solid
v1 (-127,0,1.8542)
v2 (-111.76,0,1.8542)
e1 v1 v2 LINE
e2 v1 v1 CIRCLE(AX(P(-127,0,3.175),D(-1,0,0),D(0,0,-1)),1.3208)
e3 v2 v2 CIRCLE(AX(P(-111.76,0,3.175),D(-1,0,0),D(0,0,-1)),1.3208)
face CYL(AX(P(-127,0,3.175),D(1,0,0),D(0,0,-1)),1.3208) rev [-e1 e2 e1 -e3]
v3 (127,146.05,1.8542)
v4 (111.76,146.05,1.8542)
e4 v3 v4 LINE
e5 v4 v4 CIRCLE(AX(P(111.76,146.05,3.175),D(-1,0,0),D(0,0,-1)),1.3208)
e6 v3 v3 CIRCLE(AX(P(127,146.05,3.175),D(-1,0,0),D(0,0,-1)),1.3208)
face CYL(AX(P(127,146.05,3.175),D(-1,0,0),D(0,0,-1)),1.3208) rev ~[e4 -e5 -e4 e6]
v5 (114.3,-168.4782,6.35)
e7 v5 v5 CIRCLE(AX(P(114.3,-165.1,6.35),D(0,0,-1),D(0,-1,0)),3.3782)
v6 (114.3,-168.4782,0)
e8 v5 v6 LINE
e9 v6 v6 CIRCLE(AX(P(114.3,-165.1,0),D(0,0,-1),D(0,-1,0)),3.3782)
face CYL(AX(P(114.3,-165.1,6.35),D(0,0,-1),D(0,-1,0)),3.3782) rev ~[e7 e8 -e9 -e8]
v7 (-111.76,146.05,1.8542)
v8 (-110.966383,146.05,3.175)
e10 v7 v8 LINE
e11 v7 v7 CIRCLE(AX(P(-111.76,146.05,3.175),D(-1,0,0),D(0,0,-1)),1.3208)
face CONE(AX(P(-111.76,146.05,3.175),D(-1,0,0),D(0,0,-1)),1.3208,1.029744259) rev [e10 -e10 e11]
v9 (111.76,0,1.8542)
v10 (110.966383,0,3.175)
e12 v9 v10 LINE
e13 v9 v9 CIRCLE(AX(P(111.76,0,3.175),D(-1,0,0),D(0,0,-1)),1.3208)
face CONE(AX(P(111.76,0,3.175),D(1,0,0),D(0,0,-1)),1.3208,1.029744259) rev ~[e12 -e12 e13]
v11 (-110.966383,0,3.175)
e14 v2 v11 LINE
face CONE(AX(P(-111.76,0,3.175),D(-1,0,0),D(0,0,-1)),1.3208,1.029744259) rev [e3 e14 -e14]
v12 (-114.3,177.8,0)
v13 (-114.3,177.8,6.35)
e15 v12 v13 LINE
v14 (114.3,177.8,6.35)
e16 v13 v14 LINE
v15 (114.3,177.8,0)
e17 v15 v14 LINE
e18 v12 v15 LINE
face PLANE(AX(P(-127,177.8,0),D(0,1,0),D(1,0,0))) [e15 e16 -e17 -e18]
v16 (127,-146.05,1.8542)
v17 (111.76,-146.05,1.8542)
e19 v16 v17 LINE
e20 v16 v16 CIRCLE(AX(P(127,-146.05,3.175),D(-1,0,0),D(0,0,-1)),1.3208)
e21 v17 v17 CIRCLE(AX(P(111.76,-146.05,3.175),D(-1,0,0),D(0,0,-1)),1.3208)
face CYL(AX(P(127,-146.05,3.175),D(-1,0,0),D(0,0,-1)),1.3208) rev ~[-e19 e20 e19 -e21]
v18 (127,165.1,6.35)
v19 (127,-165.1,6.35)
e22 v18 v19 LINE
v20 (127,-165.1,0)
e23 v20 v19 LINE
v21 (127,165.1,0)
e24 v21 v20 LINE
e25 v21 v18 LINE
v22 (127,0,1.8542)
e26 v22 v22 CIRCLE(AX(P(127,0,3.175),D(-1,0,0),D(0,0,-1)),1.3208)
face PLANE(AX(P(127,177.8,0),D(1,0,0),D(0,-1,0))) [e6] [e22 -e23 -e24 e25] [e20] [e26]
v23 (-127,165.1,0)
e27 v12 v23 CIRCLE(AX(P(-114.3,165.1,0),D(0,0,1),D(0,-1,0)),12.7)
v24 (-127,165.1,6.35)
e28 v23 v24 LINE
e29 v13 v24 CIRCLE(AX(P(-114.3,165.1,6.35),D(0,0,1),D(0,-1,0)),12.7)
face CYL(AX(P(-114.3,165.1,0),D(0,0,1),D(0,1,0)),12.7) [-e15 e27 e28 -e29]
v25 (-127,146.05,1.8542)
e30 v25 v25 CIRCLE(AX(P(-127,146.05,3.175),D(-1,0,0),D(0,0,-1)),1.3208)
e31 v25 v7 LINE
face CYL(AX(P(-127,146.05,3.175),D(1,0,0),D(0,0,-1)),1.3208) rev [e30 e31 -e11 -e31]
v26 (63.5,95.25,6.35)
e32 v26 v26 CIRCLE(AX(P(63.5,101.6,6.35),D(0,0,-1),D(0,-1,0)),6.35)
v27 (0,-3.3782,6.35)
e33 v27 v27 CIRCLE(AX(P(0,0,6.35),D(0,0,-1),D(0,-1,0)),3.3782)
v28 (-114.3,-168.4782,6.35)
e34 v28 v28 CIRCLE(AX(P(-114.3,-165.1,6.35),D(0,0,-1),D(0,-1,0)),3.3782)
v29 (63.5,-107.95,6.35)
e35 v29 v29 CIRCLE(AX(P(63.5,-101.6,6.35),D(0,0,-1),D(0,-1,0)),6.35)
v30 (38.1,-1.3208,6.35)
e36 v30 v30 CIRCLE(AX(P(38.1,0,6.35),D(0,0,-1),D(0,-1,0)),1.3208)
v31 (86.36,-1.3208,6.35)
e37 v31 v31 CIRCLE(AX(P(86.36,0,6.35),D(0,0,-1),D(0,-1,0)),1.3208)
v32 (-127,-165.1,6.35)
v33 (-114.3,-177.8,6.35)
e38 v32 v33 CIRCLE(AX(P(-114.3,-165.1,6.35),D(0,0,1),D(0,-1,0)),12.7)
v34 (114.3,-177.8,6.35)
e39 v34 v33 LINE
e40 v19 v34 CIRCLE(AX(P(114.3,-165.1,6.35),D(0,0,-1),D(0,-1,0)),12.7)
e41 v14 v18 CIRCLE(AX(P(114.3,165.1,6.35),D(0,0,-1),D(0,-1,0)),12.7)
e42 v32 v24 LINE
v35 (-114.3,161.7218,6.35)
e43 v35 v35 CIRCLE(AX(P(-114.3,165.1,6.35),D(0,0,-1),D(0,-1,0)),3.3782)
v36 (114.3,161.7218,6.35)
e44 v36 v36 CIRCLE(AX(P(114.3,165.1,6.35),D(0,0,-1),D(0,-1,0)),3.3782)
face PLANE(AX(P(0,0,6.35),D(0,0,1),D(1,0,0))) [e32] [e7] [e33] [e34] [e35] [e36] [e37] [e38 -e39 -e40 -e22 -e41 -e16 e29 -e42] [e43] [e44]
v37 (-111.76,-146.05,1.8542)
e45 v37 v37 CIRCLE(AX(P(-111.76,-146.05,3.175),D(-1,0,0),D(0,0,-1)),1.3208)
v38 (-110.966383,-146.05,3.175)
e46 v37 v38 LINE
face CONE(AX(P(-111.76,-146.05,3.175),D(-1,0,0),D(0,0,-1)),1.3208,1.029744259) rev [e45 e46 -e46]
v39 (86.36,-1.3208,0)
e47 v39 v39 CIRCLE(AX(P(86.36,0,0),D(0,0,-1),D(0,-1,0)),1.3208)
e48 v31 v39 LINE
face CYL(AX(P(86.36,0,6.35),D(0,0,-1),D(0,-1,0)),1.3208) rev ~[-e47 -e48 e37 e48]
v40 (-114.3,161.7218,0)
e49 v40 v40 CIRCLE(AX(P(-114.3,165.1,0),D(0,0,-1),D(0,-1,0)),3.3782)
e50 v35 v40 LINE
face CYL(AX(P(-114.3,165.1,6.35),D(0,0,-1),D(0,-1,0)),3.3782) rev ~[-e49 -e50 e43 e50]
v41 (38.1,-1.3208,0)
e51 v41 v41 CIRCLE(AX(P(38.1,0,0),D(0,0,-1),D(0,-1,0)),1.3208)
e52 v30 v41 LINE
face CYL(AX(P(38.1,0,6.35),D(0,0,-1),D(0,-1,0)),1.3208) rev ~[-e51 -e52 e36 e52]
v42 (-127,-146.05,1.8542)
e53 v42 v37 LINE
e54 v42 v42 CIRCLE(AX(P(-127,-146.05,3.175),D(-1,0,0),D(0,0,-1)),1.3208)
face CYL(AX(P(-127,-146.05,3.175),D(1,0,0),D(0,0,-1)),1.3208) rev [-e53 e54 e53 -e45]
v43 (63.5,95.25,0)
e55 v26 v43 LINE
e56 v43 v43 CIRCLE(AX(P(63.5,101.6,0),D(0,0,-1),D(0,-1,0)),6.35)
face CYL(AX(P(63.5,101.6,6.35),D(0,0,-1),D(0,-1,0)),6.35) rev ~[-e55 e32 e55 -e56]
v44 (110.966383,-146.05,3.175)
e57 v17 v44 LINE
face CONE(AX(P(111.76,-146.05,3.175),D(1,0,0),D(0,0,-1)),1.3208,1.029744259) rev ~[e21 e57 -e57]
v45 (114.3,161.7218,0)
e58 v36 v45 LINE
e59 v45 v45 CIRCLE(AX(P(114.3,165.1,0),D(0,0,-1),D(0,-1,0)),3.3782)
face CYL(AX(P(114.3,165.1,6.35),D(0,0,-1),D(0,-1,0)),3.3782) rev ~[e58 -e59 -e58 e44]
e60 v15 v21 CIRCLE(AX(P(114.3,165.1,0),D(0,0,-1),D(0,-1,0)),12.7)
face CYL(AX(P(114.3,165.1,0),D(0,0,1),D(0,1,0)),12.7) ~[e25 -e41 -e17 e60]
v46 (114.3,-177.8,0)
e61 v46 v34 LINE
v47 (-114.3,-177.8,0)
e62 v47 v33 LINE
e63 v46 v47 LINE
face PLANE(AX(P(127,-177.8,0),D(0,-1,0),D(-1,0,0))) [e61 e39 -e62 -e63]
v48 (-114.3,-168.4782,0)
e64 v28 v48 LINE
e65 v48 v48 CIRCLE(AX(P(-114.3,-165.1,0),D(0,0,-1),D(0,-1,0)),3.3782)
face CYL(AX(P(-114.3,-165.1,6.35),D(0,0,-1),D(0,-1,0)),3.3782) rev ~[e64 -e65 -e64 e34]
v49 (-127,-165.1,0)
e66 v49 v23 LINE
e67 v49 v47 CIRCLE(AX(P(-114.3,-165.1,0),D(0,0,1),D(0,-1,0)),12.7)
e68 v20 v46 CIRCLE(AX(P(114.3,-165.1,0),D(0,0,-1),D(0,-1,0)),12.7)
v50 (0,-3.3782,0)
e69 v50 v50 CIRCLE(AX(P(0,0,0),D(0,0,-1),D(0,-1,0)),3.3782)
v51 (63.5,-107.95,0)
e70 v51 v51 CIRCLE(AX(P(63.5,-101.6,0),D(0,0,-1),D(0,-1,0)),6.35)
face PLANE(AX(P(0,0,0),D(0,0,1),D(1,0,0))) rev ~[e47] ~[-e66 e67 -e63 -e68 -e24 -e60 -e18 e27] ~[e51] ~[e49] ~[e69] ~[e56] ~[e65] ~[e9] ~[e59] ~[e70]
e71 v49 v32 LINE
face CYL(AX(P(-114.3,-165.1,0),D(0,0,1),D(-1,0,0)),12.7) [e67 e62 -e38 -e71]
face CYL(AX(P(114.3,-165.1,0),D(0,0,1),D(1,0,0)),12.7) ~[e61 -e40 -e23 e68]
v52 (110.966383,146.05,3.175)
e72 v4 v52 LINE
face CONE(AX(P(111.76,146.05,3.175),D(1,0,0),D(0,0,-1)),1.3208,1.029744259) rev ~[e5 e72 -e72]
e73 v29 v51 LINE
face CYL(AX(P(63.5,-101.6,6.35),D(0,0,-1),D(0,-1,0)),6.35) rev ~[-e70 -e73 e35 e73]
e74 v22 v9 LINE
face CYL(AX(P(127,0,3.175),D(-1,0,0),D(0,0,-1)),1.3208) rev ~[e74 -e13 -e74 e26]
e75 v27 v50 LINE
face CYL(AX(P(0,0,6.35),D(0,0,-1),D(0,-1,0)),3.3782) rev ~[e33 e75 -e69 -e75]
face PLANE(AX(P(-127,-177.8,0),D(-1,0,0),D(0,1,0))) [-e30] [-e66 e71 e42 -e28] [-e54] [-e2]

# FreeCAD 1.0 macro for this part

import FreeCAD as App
import Part
import Sketcher

V = App.Vector
Q = App.Units.Quantity


def edges_at(feature, points):
    """Names of the edges that pass closest to the given points."""
    edges = feature.Shape.Edges
    near = lambda p: min(range(len(edges)), key=lambda i: edges[i].distToShape(Part.Vertex(*p))[0])
    return sorted({f"Edge{near(p) + 1}" for p in points})


def add_polygon(sketch, points):
    """Adds a closed chain of lines whose ends are joined by coincident constraints."""
    first, n = sketch.GeometryCount, len(points)
    for a, b in zip(points, points[1:] + points[:1]):
        sketch.addGeometry(Part.LineSegment(App.Vector(*a, 0), App.Vector(*b, 0)), False)
    for i in range(n):
        sketch.addConstraint(Sketcher.Constraint("Coincident", first + i, 2, first + (i + 1) % n, 1))

doc = App.newDocument("Part")
params = doc.addObject("Spreadsheet::Sheet", "Params")
for row, (alias, value) in enumerate([
    ("sketch1_width", "10 in"),
    ("sketch1_height", "14 in"),
    ("pad1_length", "0.25 in"),
    ("sketch2_diameter", "0.266 in"),
    ("hole_diameter", "0.266 in"),
    ("fillet_radius", "0.5 in"),
    ("sketch3_diameter", "0.104 in"),
    ("hole2_diameter", "0.104 in"),
    ("hole2_depth", "0.6 in"),
    ("sketch4_diameter", "0.104 in"),
    ("hole3_diameter", "0.104 in"),
    ("sketch5_diameter", "0.5 in"),
    ("hole4_diameter", "0.5 in"),
], start=1):
    params.set(f"A{row}", alias)
    params.set(f"B{row}", "=" + value)
    params.setAlias(f"B{row}", alias)

body = doc.addObject("PartDesign::Body", "Body")

sketch1 = doc.addObject("Sketcher::SketchObject", "Sketch")
body.addObject(sketch1)
sketch1.AttachmentSupport = (doc.XY_Plane, [""])
sketch1.MapMode = "FlatFace"
add_polygon(sketch1, [(127, 177.8), (-127, 177.8), (-127, -177.8), (127, -177.8)])
sketch1.addConstraint(Sketcher.Constraint("Horizontal", 0))
sketch1.addConstraint(Sketcher.Constraint("Vertical", 1))
sketch1.addConstraint(Sketcher.Constraint("Horizontal", 2))
sketch1.addConstraint(Sketcher.Constraint("Vertical", 3))
sketch1.addConstraint(Sketcher.Constraint("Symmetric", 0, 2, 2, 2, -1, 1))
sketch1.addConstraint(Sketcher.Constraint("DistanceX", 0, 2, 0, 1, Q("10 in")))
sketch1.addConstraint(Sketcher.Constraint("DistanceY", 1, 2, 1, 1, Q("14 in")))
sketch1.setExpression("Constraints[9]", "Params.sketch1_width")
sketch1.setExpression("Constraints[10]", "Params.sketch1_height")
pad1 = doc.addObject("PartDesign::Pad", "Pad")
body.addObject(pad1)
pad1.Profile = sketch1
pad1.setExpression("Length", "Params.pad1_length")

sketch2 = doc.addObject("Sketcher::SketchObject", "Sketch001")
body.addObject(sketch2)
sketch2.AttachmentSupport = (doc.XY_Plane, [""])
sketch2.MapMode = "FlatFace"
sketch2.AttachmentOffset = App.Placement(V(0, 0, 0.25 * 25.4), App.Rotation())
sketch2.addGeometry(Part.Circle(V(-114.3, 165.1, 0), V(0, 0, 1), 3.3782), False)
sketch2.addGeometry(Part.Circle(V(114.3, 165.1, 0), V(0, 0, 1), 3.3782), False)
sketch2.addGeometry(Part.Circle(V(114.3, -165.1, 0), V(0, 0, 1), 3.3782), False)
sketch2.addGeometry(Part.Circle(V(-114.3, -165.1, 0), V(0, 0, 1), 3.3782), False)
sketch2.addGeometry(Part.Circle(V(0, 0, 0), V(0, 0, 1), 3.3782), False)
sketch2.addConstraint(Sketcher.Constraint("Coincident", 4, 3, -1, 1))
sketch2.addConstraint(Sketcher.Constraint("Equal", 0, 1))
sketch2.addConstraint(Sketcher.Constraint("Equal", 1, 2))
sketch2.addConstraint(Sketcher.Constraint("Equal", 2, 3))
sketch2.addConstraint(Sketcher.Constraint("Equal", 3, 4))
sketch2.addConstraint(Sketcher.Constraint("Symmetric", 0, 3, 2, 3, -1, 1))
sketch2.addConstraint(Sketcher.Constraint("Symmetric", 1, 3, 3, 3, -1, 1))
sketch2.addConstraint(Sketcher.Constraint("Symmetric", 0, 3, 1, 3, -2))
sketch2.addConstraint(Sketcher.Constraint("Diameter", 0, Q("0.266 in")))
sketch2.addConstraint(Sketcher.Constraint("DistanceX", 0, 3, 1, 3, Q("9 in")))
sketch2.addConstraint(Sketcher.Constraint("DistanceY", 2, 3, 1, 3, Q("13 in")))
sketch2.setExpression("Constraints[8]", "Params.sketch2_diameter")
doc.recompute()
hole = doc.addObject("PartDesign::Hole", "Hole")
body.addObject(hole)
hole.Profile = sketch2
hole.ThreadType = "None"
hole.setExpression("Diameter", "Params.hole_diameter")
hole.DepthType = "ThroughAll"
doc.recompute()

fillet = doc.addObject("PartDesign::Fillet", "Fillet")
body.addObject(fillet)
fillet.Base = (hole, edges_at(hole, [
    (127, -177.8, 3.175),
    (-127, -177.8, 3.175),
    (127, 177.8, 3.175),
    (-127, 177.8, 3.175),
]))
fillet.setExpression("Radius", "Params.fillet_radius")

sketch3 = doc.addObject("Sketcher::SketchObject", "Sketch002")
body.addObject(sketch3)
sketch3.AttachmentSupport = (doc.YZ_Plane, [""])
sketch3.MapMode = "FlatFace"
sketch3.AttachmentOffset = App.Placement(V(0, 0, 5 * 25.4), App.Rotation())
sketch3.addGeometry(Part.Circle(V(0, 3.175, 0), V(0, 0, 1), 1.3208), False)
sketch3.addGeometry(Part.Circle(V(146.05, 3.175, 0), V(0, 0, 1), 1.3208), False)
sketch3.addGeometry(Part.Circle(V(-146.05, 3.175, 0), V(0, 0, 1), 1.3208), False)
sketch3.addConstraint(Sketcher.Constraint("Equal", 0, 1))
sketch3.addConstraint(Sketcher.Constraint("Equal", 1, 2))
sketch3.addConstraint(Sketcher.Constraint("Symmetric", 1, 3, 2, 3, -2))
sketch3.addConstraint(Sketcher.Constraint("PointOnObject", 0, 3, -2))
sketch3.addConstraint(Sketcher.Constraint("Horizontal", 0, 3, 1, 3))
sketch3.addConstraint(Sketcher.Constraint("Diameter", 0, Q("0.104 in")))
sketch3.addConstraint(Sketcher.Constraint("DistanceX", 2, 3, 1, 3, Q("11.5 in")))
sketch3.addConstraint(Sketcher.Constraint("DistanceY", -1, 1, 0, 3, Q("0.125 in")))
sketch3.setExpression("Constraints[5]", "Params.sketch3_diameter")
doc.recompute()
hole2 = doc.addObject("PartDesign::Hole", "Hole001")
body.addObject(hole2)
hole2.Profile = sketch3
hole2.ThreadType = "None"
hole2.setExpression("Diameter", "Params.hole2_diameter")
hole2.DepthType = "Dimension"
hole2.setExpression("Depth", "Params.hole2_depth")
hole2.DrillPoint = "Angled"
hole2.DrillPointAngle = 118
doc.recompute()

mirrored = doc.addObject("PartDesign::Mirrored", "Mirrored")
body.addObject(mirrored)
mirrored.Originals = [hole2]
mirrored.MirrorPlane = (doc.YZ_Plane, [""])
body.Tip = mirrored

sketch4 = doc.addObject("Sketcher::SketchObject", "Sketch003")
body.addObject(sketch4)
sketch4.AttachmentSupport = (doc.XY_Plane, [""])
sketch4.MapMode = "FlatFace"
sketch4.AttachmentOffset = App.Placement(V(0, 0, 0.25 * 25.4), App.Rotation())
sketch4.addGeometry(Part.Circle(V(86.36, 0, 0), V(0, 0, 1), 1.3208), False)
sketch4.addGeometry(Part.Circle(V(38.1, 0, 0), V(0, 0, 1), 1.3208), False)
sketch4.addConstraint(Sketcher.Constraint("Equal", 0, 1))
sketch4.addConstraint(Sketcher.Constraint("PointOnObject", 0, 3, -1))
sketch4.addConstraint(Sketcher.Constraint("PointOnObject", 1, 3, -1))
sketch4.addConstraint(Sketcher.Constraint("Diameter", 0, Q("0.104 in")))
sketch4.addConstraint(Sketcher.Constraint("DistanceX", -1, 1, 0, 3, Q("3.4 in")))
sketch4.addConstraint(Sketcher.Constraint("DistanceX", -1, 1, 1, 3, Q("1.5 in")))
sketch4.setExpression("Constraints[3]", "Params.sketch4_diameter")
doc.recompute()
hole3 = doc.addObject("PartDesign::Hole", "Hole002")
body.addObject(hole3)
hole3.Profile = sketch4
hole3.ThreadType = "None"
hole3.setExpression("Diameter", "Params.hole3_diameter")
hole3.DepthType = "ThroughAll"

sketch5 = doc.addObject("Sketcher::SketchObject", "Sketch004")
body.addObject(sketch5)
sketch5.AttachmentSupport = (doc.XY_Plane, [""])
sketch5.MapMode = "FlatFace"
sketch5.AttachmentOffset = App.Placement(V(0, 0, 0.25 * 25.4), App.Rotation())
sketch5.addGeometry(Part.Circle(V(63.5, 101.6, 0), V(0, 0, 1), 6.35), False)
sketch5.addGeometry(Part.Circle(V(63.5, -101.6, 0), V(0, 0, 1), 6.35), False)
sketch5.addConstraint(Sketcher.Constraint("Equal", 0, 1))
sketch5.addConstraint(Sketcher.Constraint("Symmetric", 0, 3, 1, 3, -1))
sketch5.addConstraint(Sketcher.Constraint("Diameter", 0, Q("0.5 in")))
sketch5.addConstraint(Sketcher.Constraint("DistanceY", -1, 1, 0, 3, Q("4 in")))
sketch5.addConstraint(Sketcher.Constraint("DistanceX", -1, 1, 0, 3, Q("2.5 in")))
sketch5.setExpression("Constraints[2]", "Params.sketch5_diameter")
doc.recompute()
hole4 = doc.addObject("PartDesign::Hole", "Hole003")
body.addObject(hole4)
hole4.Profile = sketch5
hole4.ThreadType = "None"
hole4.setExpression("Diameter", "Params.hole4_diameter")
hole4.DepthType = "ThroughAll"

doc.recompute()
